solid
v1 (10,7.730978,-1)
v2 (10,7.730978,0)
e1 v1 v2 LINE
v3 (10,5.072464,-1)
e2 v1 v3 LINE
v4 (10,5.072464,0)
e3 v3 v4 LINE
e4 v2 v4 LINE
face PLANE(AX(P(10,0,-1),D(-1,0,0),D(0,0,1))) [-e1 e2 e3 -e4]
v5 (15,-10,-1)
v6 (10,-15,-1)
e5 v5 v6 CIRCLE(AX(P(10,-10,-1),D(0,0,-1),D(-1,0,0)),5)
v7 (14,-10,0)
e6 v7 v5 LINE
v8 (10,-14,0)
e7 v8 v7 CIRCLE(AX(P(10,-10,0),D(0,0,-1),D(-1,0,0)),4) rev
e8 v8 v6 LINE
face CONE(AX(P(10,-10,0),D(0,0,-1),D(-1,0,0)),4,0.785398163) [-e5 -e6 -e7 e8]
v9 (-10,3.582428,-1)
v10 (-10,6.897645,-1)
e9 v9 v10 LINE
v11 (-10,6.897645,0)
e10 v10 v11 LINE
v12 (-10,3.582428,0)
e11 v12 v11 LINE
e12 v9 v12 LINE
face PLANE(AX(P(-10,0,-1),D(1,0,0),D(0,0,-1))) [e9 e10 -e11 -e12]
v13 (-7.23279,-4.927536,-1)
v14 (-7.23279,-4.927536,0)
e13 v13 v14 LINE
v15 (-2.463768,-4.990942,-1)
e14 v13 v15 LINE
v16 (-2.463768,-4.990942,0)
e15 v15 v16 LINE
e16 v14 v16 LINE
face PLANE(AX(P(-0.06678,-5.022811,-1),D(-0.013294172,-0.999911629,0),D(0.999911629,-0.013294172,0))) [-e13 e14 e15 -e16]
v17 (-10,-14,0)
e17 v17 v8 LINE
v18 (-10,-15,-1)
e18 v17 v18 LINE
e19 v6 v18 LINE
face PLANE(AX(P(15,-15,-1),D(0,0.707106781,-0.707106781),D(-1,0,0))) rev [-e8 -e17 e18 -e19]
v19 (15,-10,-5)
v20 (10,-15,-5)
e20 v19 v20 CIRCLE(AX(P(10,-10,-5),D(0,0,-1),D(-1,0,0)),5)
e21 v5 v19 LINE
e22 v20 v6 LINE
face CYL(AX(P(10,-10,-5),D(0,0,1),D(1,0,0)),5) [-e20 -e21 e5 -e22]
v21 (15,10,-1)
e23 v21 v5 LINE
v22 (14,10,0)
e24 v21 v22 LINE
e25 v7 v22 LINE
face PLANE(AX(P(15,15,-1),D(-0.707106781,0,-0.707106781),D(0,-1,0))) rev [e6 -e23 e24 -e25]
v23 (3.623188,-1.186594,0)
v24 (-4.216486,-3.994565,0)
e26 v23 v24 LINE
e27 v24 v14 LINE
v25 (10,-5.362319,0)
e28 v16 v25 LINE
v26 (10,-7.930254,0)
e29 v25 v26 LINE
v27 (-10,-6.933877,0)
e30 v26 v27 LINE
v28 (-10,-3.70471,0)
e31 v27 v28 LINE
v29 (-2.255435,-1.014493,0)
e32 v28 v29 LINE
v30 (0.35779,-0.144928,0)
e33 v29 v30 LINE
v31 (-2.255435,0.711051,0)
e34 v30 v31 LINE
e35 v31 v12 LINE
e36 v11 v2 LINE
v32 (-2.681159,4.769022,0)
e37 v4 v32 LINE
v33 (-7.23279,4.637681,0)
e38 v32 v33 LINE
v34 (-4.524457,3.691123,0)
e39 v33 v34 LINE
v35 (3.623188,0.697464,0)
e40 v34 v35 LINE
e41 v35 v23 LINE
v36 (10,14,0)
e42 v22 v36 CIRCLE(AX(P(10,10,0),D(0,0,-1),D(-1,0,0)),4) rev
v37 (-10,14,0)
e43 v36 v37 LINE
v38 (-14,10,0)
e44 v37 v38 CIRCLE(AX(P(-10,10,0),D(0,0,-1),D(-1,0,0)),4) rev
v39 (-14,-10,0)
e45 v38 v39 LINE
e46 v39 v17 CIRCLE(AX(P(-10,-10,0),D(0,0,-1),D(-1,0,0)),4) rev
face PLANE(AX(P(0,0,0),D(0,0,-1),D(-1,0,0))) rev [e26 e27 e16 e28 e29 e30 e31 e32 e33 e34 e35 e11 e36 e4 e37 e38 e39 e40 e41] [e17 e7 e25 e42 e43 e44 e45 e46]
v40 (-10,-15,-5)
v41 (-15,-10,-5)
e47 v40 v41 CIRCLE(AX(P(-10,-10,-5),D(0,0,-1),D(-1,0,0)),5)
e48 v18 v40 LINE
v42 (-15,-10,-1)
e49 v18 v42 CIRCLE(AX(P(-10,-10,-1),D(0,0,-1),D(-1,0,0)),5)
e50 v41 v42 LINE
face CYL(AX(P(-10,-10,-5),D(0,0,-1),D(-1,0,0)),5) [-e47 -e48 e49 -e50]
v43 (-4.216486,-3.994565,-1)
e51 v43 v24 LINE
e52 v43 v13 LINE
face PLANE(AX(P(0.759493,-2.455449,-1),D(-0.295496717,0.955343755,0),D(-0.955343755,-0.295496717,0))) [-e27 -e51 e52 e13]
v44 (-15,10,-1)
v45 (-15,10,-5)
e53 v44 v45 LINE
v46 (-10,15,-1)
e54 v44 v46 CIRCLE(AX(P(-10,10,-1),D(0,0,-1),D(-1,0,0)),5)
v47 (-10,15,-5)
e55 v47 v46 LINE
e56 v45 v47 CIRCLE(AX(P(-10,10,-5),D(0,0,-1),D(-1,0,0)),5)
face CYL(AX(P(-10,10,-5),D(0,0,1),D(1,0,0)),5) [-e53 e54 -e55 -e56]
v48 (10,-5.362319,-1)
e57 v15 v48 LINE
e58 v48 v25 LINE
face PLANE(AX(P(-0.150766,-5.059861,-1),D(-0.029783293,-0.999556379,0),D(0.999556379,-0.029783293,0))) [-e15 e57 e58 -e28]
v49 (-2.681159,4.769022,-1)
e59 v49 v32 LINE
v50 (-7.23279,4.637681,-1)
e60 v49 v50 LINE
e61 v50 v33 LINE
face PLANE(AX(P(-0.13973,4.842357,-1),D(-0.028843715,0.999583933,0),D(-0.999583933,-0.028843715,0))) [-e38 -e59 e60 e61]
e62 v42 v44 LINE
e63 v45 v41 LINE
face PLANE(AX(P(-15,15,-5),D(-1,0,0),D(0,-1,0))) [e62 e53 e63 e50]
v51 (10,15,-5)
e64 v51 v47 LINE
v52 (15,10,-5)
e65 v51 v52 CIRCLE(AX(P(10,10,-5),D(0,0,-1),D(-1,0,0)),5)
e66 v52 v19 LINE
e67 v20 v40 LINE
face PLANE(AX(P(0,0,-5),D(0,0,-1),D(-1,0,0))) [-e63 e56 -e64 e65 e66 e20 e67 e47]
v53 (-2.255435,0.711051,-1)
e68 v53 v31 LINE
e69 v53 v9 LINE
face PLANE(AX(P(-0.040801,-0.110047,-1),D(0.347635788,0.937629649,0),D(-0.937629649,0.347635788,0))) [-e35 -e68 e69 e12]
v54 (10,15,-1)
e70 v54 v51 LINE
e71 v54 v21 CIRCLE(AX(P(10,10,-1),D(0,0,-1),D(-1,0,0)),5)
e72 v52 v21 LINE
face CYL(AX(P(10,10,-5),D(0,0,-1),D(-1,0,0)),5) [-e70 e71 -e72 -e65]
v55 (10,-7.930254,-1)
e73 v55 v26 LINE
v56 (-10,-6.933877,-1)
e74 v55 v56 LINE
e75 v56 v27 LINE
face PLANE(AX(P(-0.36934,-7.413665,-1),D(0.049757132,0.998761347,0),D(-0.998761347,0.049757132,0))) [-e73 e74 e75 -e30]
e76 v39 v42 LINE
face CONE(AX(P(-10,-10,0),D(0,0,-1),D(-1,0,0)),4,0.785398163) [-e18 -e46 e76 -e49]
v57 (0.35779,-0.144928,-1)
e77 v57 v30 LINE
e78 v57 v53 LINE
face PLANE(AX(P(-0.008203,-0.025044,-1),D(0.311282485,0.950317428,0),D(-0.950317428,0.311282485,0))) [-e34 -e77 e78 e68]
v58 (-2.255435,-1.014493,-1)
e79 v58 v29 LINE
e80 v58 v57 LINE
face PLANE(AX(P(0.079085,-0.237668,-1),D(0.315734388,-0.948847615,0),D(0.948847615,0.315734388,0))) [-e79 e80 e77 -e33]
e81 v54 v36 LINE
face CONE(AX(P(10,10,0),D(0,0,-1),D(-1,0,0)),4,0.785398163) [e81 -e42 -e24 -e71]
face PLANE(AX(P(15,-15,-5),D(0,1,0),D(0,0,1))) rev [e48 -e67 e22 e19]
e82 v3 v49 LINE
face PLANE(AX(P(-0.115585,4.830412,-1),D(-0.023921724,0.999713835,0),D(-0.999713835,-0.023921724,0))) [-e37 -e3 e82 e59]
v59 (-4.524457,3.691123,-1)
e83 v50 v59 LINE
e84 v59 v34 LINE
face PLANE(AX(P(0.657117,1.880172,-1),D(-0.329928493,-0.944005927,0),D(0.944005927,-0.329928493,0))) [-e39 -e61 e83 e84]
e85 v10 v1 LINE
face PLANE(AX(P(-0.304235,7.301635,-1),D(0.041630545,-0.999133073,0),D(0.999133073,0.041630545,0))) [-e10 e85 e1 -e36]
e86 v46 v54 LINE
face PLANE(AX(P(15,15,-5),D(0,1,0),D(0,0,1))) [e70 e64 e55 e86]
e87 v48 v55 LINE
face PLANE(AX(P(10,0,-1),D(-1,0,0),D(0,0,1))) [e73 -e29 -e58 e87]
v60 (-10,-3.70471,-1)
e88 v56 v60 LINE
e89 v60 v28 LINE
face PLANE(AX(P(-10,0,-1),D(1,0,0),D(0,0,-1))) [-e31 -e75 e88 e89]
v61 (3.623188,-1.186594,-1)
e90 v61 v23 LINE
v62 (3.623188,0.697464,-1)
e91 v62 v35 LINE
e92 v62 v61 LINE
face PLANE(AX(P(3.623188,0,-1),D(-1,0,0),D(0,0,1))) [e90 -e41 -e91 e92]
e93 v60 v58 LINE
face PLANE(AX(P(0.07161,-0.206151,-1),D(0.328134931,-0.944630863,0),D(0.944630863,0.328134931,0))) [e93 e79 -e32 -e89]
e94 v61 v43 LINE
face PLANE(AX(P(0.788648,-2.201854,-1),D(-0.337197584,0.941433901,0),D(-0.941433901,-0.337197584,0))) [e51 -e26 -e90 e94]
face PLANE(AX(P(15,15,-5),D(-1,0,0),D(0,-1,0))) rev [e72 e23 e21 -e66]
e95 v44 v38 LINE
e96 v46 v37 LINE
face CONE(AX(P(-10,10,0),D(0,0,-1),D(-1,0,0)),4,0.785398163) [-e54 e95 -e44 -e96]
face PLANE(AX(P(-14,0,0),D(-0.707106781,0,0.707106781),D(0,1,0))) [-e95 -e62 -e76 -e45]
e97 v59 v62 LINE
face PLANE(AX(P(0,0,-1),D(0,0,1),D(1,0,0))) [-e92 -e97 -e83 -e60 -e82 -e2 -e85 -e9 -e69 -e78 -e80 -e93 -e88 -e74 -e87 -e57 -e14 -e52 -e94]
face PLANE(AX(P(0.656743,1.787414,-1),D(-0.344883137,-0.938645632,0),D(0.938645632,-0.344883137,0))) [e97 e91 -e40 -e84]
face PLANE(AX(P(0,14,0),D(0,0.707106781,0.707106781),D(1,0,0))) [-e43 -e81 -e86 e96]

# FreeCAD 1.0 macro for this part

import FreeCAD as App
import Part
import Sketcher


def edges_at(feature, points):
    """Names of the edges that pass closest to the given points."""
    edges = feature.Shape.Edges
    near = lambda p: min(range(len(edges)), key=lambda i: edges[i].distToShape(Part.Vertex(*p))[0])
    return sorted({f"Edge{near(p) + 1}" for p in points})


def add_polygon(sketch, points):
    """Adds a closed chain of lines whose ends are joined by coincident constraints."""
    first, n = sketch.GeometryCount, len(points)
    for a, b in zip(points, points[1:] + points[:1]):
        sketch.addGeometry(Part.LineSegment(App.Vector(*a, 0), App.Vector(*b, 0)), False)
    for i in range(n):
        sketch.addConstraint(Sketcher.Constraint("Coincident", first + i, 2, first + (i + 1) % n, 1))

doc = App.newDocument("Part")
body = doc.addObject("PartDesign::Body", "Body")

# Sketch on XY plane
sketch1 = body.newObject("Sketcher::SketchObject", "Sketch")
sketch1.AttachmentSupport = (doc.getObject("XY_Plane"), [""])
sketch1.MapMode = "FlatFace"
add_polygon(sketch1, [(-15, -15), (15, -15), (15, 15), (-15, 15)])  # lines 0-3
sketch1.addConstraint(Sketcher.Constraint("Horizontal", 0))
sketch1.addConstraint(Sketcher.Constraint("Vertical", 1))
sketch1.addConstraint(Sketcher.Constraint("Horizontal", 2))
sketch1.addConstraint(Sketcher.Constraint("Vertical", 3))
sketch1.addConstraint(Sketcher.Constraint("Symmetric", 0, 2, 2, 2, -1, 1))
sketch1.addConstraint(Sketcher.Constraint("Equal", 2, 1))
sketch1.addConstraint(Sketcher.Constraint("DistanceX", 0, 1, 0, 2, 30.0))
pad1 = body.newObject("PartDesign::Pad", "Pad")
pad1.Profile = sketch1
pad1.Length = 5
pad1.Reversed = True

# Sketch on XY plane
sketch2 = body.newObject("Sketcher::SketchObject", "Sketch001")
sketch2.AttachmentSupport = (doc.getObject("XY_Plane"), [""])
sketch2.MapMode = "FlatFace"
add_polygon(sketch2, [(-20.3, -20.3), (20.3, -20.3), (20.3, 20.3), (-20.3, 20.3)])  # lines 0-3
add_polygon(sketch2, [(15, 15), (15, -15), (-15, -15), (-15, 15)])  # lines 4-7
add_polygon(sketch2, [(10, 5.1), (10, 7.7), (-10, 6.9), (-10, 3.6), (-2.3, 0.7), (0.4, -0.1), (-2.3, -1), (-10, -3.7), (-10, -6.9), (10, -7.9), (10, -5.4), (-2.5, -5), (-7.2, -4.9), (-4.2, -4), (3.6, -1.2), (3.6, 0.7), (-4.5, 3.7), (-7.2, 4.6), (-2.7, 4.8)])  # lines 8-26
sketch2.addConstraint(Sketcher.Constraint("Horizontal", 0))
sketch2.addConstraint(Sketcher.Constraint("Vertical", 1))
sketch2.addConstraint(Sketcher.Constraint("Horizontal", 2))
sketch2.addConstraint(Sketcher.Constraint("Vertical", 3))
sketch2.addConstraint(Sketcher.Constraint("Vertical", 4))
sketch2.addConstraint(Sketcher.Constraint("Horizontal", 5))
sketch2.addConstraint(Sketcher.Constraint("Vertical", 6))
sketch2.addConstraint(Sketcher.Constraint("Horizontal", 7))
sketch2.addConstraint(Sketcher.Constraint("Vertical", 8))
sketch2.addConstraint(Sketcher.Constraint("Vertical", 10))
sketch2.addConstraint(Sketcher.Constraint("Vertical", 15))
sketch2.addConstraint(Sketcher.Constraint("Vertical", 17))
sketch2.addConstraint(Sketcher.Constraint("Vertical", 22))
sketch2.addConstraint(Sketcher.Constraint("Symmetric", 0, 2, 2, 2, -1, 1))
sketch2.addConstraint(Sketcher.Constraint("Symmetric", 4, 2, 6, 2, -1, 1))
sketch2.addConstraint(Sketcher.Constraint("Vertical", 11, 2, 13, 2))
sketch2.addConstraint(Sketcher.Constraint("Vertical", 10, 2, 14, 2))
sketch2.addConstraint(Sketcher.Constraint("Vertical", 8, 2, 16, 2))
sketch2.addConstraint(Sketcher.Constraint("Vertical", 19, 2, 24, 2))
sketch2.addConstraint(Sketcher.Constraint("Equal", 2, 1))
sketch2.addConstraint(Sketcher.Constraint("Equal", 7, 4))
sketch2.addConstraint(Sketcher.Constraint("DistanceX", 5, 2, 5, 1, 30.0))
sketch2.addConstraint(Sketcher.Constraint("DistanceX", -1, 1, 8, 2, 10.0))
sketch2.addConstraint(Sketcher.Constraint("DistanceX", 9, 2, -1, 1, 10.0))
sketch2.addConstraint(Sketcher.Constraint("DistanceX", 0, 1, 0, 2, 40.544))
sketch2.addConstraint(Sketcher.Constraint("DistanceY", 22, 2, 26, 2, 4.375))
sketch2.addConstraint(Sketcher.Constraint("Distance", 18, 12.4693))
sketch2.addConstraint(Sketcher.Constraint("DistanceX", 12, 2, 21, 2, 3.265399))
sketch2.addConstraint(Sketcher.Constraint("DistanceY", 21, 2, 13, 2, 0.172101))
sketch2.addConstraint(Sketcher.Constraint("DistanceY", 23, 2, 25, 2, 1.077899))
sketch2.addConstraint(Sketcher.Constraint("Distance", 14, 8.19851))
sketch2.addConstraint(Sketcher.Constraint("Distance", 24, 2.868979))
sketch2.addConstraint(Sketcher.Constraint("Distance", 26, 12.684789))
sketch2.addConstraint(Sketcher.Constraint("DistanceY", 8, 1, 8, 2, 2.658514))
sketch2.addConstraint(Sketcher.Constraint("DistanceY", 10, 2, 10, 1, 3.315217))
sketch2.addConstraint(Sketcher.Constraint("DistanceY", 15, 2, 15, 1, 3.229167))
sketch2.addConstraint(Sketcher.Constraint("DistanceY", 17, 1, 17, 2, 2.567935))
sketch2.addConstraint(Sketcher.Constraint("DistanceY", 22, 1, 22, 2, 1.884058))
sketch2.addConstraint(Sketcher.Constraint("DistanceY", -1, 1, 8, 2, 7.730978))
sketch2.addConstraint(Sketcher.Constraint("DistanceY", -1, 1, 11, 2, 0.711051))
sketch2.addConstraint(Sketcher.Constraint("DistanceX", -1, 1, 12, 2, 0.35779))
sketch2.addConstraint(Sketcher.Constraint("DistanceY", 14, 2, -1, 1, 3.70471))
sketch2.addConstraint(Sketcher.Constraint("DistanceY", 17, 2, -1, 1, 5.362319))
sketch2.addConstraint(Sketcher.Constraint("DistanceX", 18, 2, -1, 1, 2.463768))
sketch2.addConstraint(Sketcher.Constraint("DistanceX", 19, 2, -1, 1, 7.23279))
sketch2.addConstraint(Sketcher.Constraint("DistanceY", -1, 1, 24, 2, 4.637681))
sketch2.addConstraint(Sketcher.Constraint("DistanceX", 25, 2, -1, 1, 2.681159))
sketch2.addConstraint(Sketcher.Constraint("DistanceY", 10, 2, 8, 2, 4.148551))
sketch2.addConstraint(Sketcher.Constraint("DistanceY", 12, 2, 11, 2, 0.855978))
sketch2.addConstraint(Sketcher.Constraint("DistanceY", 15, 2, 19, 2, 2.006341))
sketch2.addConstraint(Sketcher.Constraint("DistanceY", 19, 2, 20, 2, 0.932971))
sketch2.addConstraint(Sketcher.Constraint("DistanceX", 20, 2, 13, 2, 1.961051))
pocket1 = body.newObject("PartDesign::Pocket", "Pocket")
pocket1.Profile = sketch2
pocket1.Length = 1
doc.recompute()

fillet = body.newObject("PartDesign::Fillet", "Fillet")
fillet.Base = (pocket1, edges_at(pocket1, [
    (15, 15, -2.5),
    (-15, 15, -2.5),
    (-15, -15, -2.5),
    (15, -15, -2.5),
]))
fillet.Radius = 5
doc.recompute()

chamfer = body.newObject("PartDesign::Chamfer", "Chamfer")
chamfer.Base = (fillet, edges_at(fillet, [
    (0, 15, 0),
    (15, 0, 0),
    (-15, 0, 0),
    (0, -15, 0),
    (-13.536, -13.536, 0),
    (13.536, -13.536, 0),
    (13.536, 13.536, 0),
    (-13.536, 13.536, 0),
]))
chamfer.Size = 1

doc.recompute()
